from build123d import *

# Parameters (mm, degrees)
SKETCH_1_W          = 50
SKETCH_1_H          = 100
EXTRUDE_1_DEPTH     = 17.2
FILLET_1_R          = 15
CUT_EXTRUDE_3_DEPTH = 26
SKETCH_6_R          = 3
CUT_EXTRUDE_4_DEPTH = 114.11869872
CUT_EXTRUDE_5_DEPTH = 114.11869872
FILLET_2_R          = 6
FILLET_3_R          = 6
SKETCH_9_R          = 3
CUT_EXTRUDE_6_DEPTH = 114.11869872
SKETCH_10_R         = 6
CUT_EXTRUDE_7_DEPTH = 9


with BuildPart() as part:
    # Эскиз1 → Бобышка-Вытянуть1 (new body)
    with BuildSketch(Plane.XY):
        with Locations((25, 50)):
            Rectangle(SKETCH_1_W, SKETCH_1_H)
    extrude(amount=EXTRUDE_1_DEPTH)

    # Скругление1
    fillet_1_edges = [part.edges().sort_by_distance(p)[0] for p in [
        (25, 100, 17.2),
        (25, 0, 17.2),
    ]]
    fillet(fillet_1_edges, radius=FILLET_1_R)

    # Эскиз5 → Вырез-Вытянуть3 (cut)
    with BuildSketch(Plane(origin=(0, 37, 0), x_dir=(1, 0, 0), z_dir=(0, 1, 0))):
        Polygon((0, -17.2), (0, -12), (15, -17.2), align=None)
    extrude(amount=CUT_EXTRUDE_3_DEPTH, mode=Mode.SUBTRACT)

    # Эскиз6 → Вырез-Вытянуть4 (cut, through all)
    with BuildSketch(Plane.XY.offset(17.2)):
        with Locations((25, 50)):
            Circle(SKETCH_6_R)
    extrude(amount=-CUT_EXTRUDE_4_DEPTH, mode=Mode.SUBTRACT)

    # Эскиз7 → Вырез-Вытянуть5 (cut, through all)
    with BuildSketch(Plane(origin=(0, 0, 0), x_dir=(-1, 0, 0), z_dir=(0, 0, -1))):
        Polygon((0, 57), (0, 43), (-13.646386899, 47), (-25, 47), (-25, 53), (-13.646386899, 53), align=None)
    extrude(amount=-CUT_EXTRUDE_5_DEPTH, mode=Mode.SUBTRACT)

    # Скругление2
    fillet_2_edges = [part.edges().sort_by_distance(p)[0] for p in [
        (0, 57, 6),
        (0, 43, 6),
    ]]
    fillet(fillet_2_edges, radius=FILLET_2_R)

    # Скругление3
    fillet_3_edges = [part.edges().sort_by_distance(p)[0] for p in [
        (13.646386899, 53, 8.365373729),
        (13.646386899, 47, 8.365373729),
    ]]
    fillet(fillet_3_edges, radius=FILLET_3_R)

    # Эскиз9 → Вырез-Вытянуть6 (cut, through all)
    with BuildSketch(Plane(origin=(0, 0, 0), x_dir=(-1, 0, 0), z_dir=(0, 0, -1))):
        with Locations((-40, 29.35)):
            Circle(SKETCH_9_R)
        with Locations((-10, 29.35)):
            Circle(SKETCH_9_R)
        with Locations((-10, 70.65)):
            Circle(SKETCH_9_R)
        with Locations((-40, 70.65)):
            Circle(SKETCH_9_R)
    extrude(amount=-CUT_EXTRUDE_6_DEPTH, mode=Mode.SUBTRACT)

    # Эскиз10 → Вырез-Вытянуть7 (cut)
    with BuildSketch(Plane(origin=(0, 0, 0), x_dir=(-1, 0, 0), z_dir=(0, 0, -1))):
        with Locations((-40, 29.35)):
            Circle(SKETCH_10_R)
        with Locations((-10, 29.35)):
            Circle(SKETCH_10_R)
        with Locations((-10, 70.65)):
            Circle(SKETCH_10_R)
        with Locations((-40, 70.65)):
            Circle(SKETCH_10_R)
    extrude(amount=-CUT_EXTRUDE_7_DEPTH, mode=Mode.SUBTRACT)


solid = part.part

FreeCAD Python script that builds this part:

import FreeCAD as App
import Part
import Sketcher
from FreeCAD import Vector


def edges_at(feature, points):
    """Names of the edges that pass closest to the given points."""
    edges = feature.Shape.Edges
    near = lambda p: min(range(len(edges)), key=lambda i: edges[i].distToShape(Part.Vertex(*p))[0])
    return sorted({f"Edge{near(p) + 1}" for p in points})

doc = App.newDocument("Part")
params = doc.addObject("Spreadsheet::Sheet", "Params")
for row, (alias, value) in enumerate([
    ("sketch1_width", "50 mm"),
    ("sketch1_height", "100 mm"),
    ("pad1_length", "17.2 mm"),
    ("fillet_radius", "15 mm"),
    ("sketch2_width", "15 mm"),
    ("sketch2_height", "5.2 mm"),
    ("pocket1_length", "26 mm"),
    ("sketch3_diameter", "6 mm"),
    ("sketch4_height", "14 mm"),
    ("sketch4_height2", "6 mm"),
    ("fillet2_radius", "6 mm"),
    ("fillet3_radius", "6 mm"),
    ("sketch5_diameter", "6 mm"),
    ("sketch6_diameter", "12 mm"),
    ("pocket5_length", "9 mm"),
], start=1):
    params.set(f"A{row}", alias)
    params.set(f"B{row}", "=" + value)
    params.setAlias(f"B{row}", alias)

body = doc.addObject("PartDesign::Body", "Body")

sketch1 = body.newObject("Sketcher::SketchObject", "Sketch")
sketch1.AttachmentSupport = (doc.getObject("XY_Plane"), [""])
sketch1.MapMode = "FlatFace"
sketch1.addGeometry(Part.LineSegment(Vector(0, 100, 0), Vector(0, 0, 0)), False)
sketch1.addGeometry(Part.LineSegment(Vector(0, 0, 0), Vector(50, 0, 0)), False)
sketch1.addGeometry(Part.LineSegment(Vector(50, 0, 0), Vector(50, 100, 0)), False)
sketch1.addGeometry(Part.LineSegment(Vector(50, 100, 0), Vector(0, 100, 0)), False)
sketch1.addConstraint(Sketcher.Constraint("Coincident", 0, 2, 1, 1))
sketch1.addConstraint(Sketcher.Constraint("Coincident", 1, 2, 2, 1))
sketch1.addConstraint(Sketcher.Constraint("Coincident", 2, 2, 3, 1))
sketch1.addConstraint(Sketcher.Constraint("Coincident", 3, 2, 0, 1))
sketch1.addConstraint(Sketcher.Constraint("Vertical", 0))
sketch1.addConstraint(Sketcher.Constraint("Horizontal", 1))
sketch1.addConstraint(Sketcher.Constraint("Vertical", 2))
sketch1.addConstraint(Sketcher.Constraint("Horizontal", 3))
sketch1.addConstraint(Sketcher.Constraint("Coincident", 0, 2, -1, 1))
sketch1.addConstraint(Sketcher.Constraint("DistanceX", 1, 1, 1, 2, 50.0))
sketch1.addConstraint(Sketcher.Constraint("DistanceY", 0, 2, 0, 1, 100.0))
sketch1.setExpression("Constraints[9]", "Params.sketch1_width")
sketch1.setExpression("Constraints[10]", "Params.sketch1_height")
pad1 = body.newObject("PartDesign::Pad", "Pad")
pad1.Profile = sketch1
pad1.setExpression("Length", "Params.pad1_length")
doc.recompute()

fillet = body.newObject("PartDesign::Fillet", "Fillet")
fillet.Base = (pad1, edges_at(pad1, [(25, 100, 17.2), (25, 0, 17.2)]))
fillet.setExpression("Radius", "Params.fillet_radius")

sketch2 = body.newObject("Sketcher::SketchObject", "Sketch001")
sketch2.AttachmentSupport = (doc.getObject("XZ_Plane"), [""])
sketch2.MapMode = "FlatFace"
sketch2.AttachmentOffset = App.Placement(Vector(0, 0, -37), App.Rotation())
sketch2.addGeometry(Part.LineSegment(Vector(0, 12, 0), Vector(0, 17, 0)), False)
sketch2.addGeometry(Part.LineSegment(Vector(0, 17, 0), Vector(15, 17, 0)), False)
sketch2.addGeometry(Part.LineSegment(Vector(15, 17, 0), Vector(0, 12, 0)), False)
sketch2.addConstraint(Sketcher.Constraint("Coincident", 0, 2, 1, 1))
sketch2.addConstraint(Sketcher.Constraint("Coincident", 1, 2, 2, 1))
sketch2.addConstraint(Sketcher.Constraint("Coincident", 2, 2, 0, 1))
sketch2.addConstraint(Sketcher.Constraint("Vertical", 0))
sketch2.addConstraint(Sketcher.Constraint("Horizontal", 1))
sketch2.addConstraint(Sketcher.Constraint("PointOnObject", 0, 2, -2))
sketch2.addConstraint(Sketcher.Constraint("DistanceX", 1, 1, 1, 2, 15.0))
sketch2.addConstraint(Sketcher.Constraint("DistanceY", 0, 1, 0, 2, 5.2))
sketch2.addConstraint(Sketcher.Constraint("DistanceY", -1, 1, 2, 2, 12.0))
sketch2.setExpression("Constraints[6]", "Params.sketch2_width")
sketch2.setExpression("Constraints[7]", "Params.sketch2_height")
pocket1 = body.newObject("PartDesign::Pocket", "Pocket")
pocket1.Profile = sketch2
pocket1.setExpression("Length", "Params.pocket1_length")

sketch3 = body.newObject("Sketcher::SketchObject", "Sketch002")
sketch3.AttachmentSupport = (doc.getObject("XY_Plane"), [""])
sketch3.MapMode = "FlatFace"
sketch3.AttachmentOffset = App.Placement(Vector(0, 0, 17.2), App.Rotation())
sketch3.addGeometry(Part.Circle(Vector(25, 50, 0), Vector(0, 0, 1), 3), False)
sketch3.addConstraint(Sketcher.Constraint("Diameter", 0, 6.0))
sketch3.addConstraint(Sketcher.Constraint("DistanceX", -1, 1, 0, 3, 25.0))
sketch3.addConstraint(Sketcher.Constraint("DistanceY", -1, 1, 0, 3, 50.0))
sketch3.setExpression("Constraints[0]", "Params.sketch3_diameter")
pocket2 = body.newObject("PartDesign::Pocket", "Pocket001")
pocket2.Profile = sketch3
pocket2.Type = "ThroughAll"

sketch4 = body.newObject("Sketcher::SketchObject", "Sketch003")
sketch4.AttachmentSupport = (doc.getObject("XY_Plane"), [""])
sketch4.MapMode = "FlatFace"
sketch4.addGeometry(Part.LineSegment(Vector(0, 43, 0), Vector(0, 57, 0)), False)
sketch4.addGeometry(Part.LineSegment(Vector(0, 57, 0), Vector(14, 53, 0)), False)
sketch4.addGeometry(Part.LineSegment(Vector(14, 53, 0), Vector(25, 53, 0)), False)
sketch4.addGeometry(Part.LineSegment(Vector(25, 53, 0), Vector(25, 47, 0)), False)
sketch4.addGeometry(Part.LineSegment(Vector(25, 47, 0), Vector(14, 47, 0)), False)
sketch4.addGeometry(Part.LineSegment(Vector(14, 47, 0), Vector(0, 43, 0)), False)
sketch4.addConstraint(Sketcher.Constraint("Coincident", 0, 2, 1, 1))
sketch4.addConstraint(Sketcher.Constraint("Coincident", 1, 2, 2, 1))
sketch4.addConstraint(Sketcher.Constraint("Coincident", 2, 2, 3, 1))
sketch4.addConstraint(Sketcher.Constraint("Coincident", 3, 2, 4, 1))
sketch4.addConstraint(Sketcher.Constraint("Coincident", 4, 2, 5, 1))
sketch4.addConstraint(Sketcher.Constraint("Coincident", 5, 2, 0, 1))
sketch4.addConstraint(Sketcher.Constraint("Vertical", 0))
sketch4.addConstraint(Sketcher.Constraint("Horizontal", 2))
sketch4.addConstraint(Sketcher.Constraint("Vertical", 3))
sketch4.addConstraint(Sketcher.Constraint("Horizontal", 4))
sketch4.addConstraint(Sketcher.Constraint("PointOnObject", 0, 2, -2))
sketch4.addConstraint(Sketcher.Constraint("Vertical", 1, 2, 4, 2))
sketch4.addConstraint(Sketcher.Constraint("Equal", 1, 5))
sketch4.addConstraint(Sketcher.Constraint("DistanceY", 0, 1, 0, 2, 14.0))
sketch4.addConstraint(Sketcher.Constraint("DistanceY", 3, 2, 3, 1, 6.0))
sketch4.addConstraint(Sketcher.Constraint("DistanceY", -1, 1, 0, 2, 57.0))
sketch4.addConstraint(Sketcher.Constraint("DistanceX", -1, 1, 2, 2, 25.0))
sketch4.addConstraint(Sketcher.Constraint("DistanceX", 2, 1, 2, 2, 11.353613))
sketch4.setExpression("Constraints[13]", "Params.sketch4_height")
sketch4.setExpression("Constraints[14]", "Params.sketch4_height2")
pocket3 = body.newObject("PartDesign::Pocket", "Pocket002")
pocket3.Profile = sketch4
pocket3.Type = "ThroughAll"
pocket3.Reversed = True
doc.recompute()

fillet2 = body.newObject("PartDesign::Fillet", "Fillet001")
fillet2.Base = (pocket3, edges_at(pocket3, [(0, 57, 6), (0, 43, 6)]))
fillet2.setExpression("Radius", "Params.fillet2_radius")
doc.recompute()

fillet3 = body.newObject("PartDesign::Fillet", "Fillet002")
fillet3.Base = (fillet2, edges_at(fillet2, [(13.646, 53, 8.365), (13.646, 47, 8.365)]))
fillet3.setExpression("Radius", "Params.fillet3_radius")

sketch5 = body.newObject("Sketcher::SketchObject", "Sketch004")
sketch5.AttachmentSupport = (doc.getObject("XY_Plane"), [""])
sketch5.MapMode = "FlatFace"
sketch5.addGeometry(Part.Circle(Vector(40, 29.4, 0), Vector(0, 0, 1), 3), False)
sketch5.addGeometry(Part.Circle(Vector(10, 29.4, 0), Vector(0, 0, 1), 3), False)
sketch5.addGeometry(Part.Circle(Vector(10, 70.7, 0), Vector(0, 0, 1), 3), False)
sketch5.addGeometry(Part.Circle(Vector(40, 70.7, 0), Vector(0, 0, 1), 3), False)
sketch5.addConstraint(Sketcher.Constraint("Equal", 0, 1))
sketch5.addConstraint(Sketcher.Constraint("Equal", 1, 2))
sketch5.addConstraint(Sketcher.Constraint("Equal", 2, 3))
sketch5.addConstraint(Sketcher.Constraint("Horizontal", 0, 3, 1, 3))
sketch5.addConstraint(Sketcher.Constraint("Horizontal", 2, 3, 3, 3))
sketch5.addConstraint(Sketcher.Constraint("Vertical", 1, 3, 2, 3))
sketch5.addConstraint(Sketcher.Constraint("Vertical", 0, 3, 3, 3))
sketch5.addConstraint(Sketcher.Constraint("Diameter", 0, 6.0))
sketch5.addConstraint(Sketcher.Constraint("DistanceX", -1, 1, 0, 3, 40.0))
sketch5.addConstraint(Sketcher.Constraint("DistanceX", -1, 1, 1, 3, 10.0))
sketch5.addConstraint(Sketcher.Constraint("DistanceY", 1, 3, 2, 3, 41.3))
sketch5.addConstraint(Sketcher.Constraint("DistanceY", -1, 1, 0, 3, 29.35))
sketch5.setExpression("Constraints[7]", "Params.sketch5_diameter")
pocket4 = body.newObject("PartDesign::Pocket", "Pocket003")
pocket4.Profile = sketch5
pocket4.Type = "ThroughAll"
pocket4.Reversed = True

sketch6 = body.newObject("Sketcher::SketchObject", "Sketch005")
sketch6.AttachmentSupport = (doc.getObject("XY_Plane"), [""])
sketch6.MapMode = "FlatFace"
sketch6.addGeometry(Part.Circle(Vector(40, 29, 0), Vector(0, 0, 1), 6), False)
sketch6.addGeometry(Part.Circle(Vector(10, 29, 0), Vector(0, 0, 1), 6), False)
sketch6.addGeometry(Part.Circle(Vector(10, 71, 0), Vector(0, 0, 1), 6), False)
sketch6.addGeometry(Part.Circle(Vector(40, 71, 0), Vector(0, 0, 1), 6), False)
sketch6.addConstraint(Sketcher.Constraint("Equal", 0, 1))
sketch6.addConstraint(Sketcher.Constraint("Equal", 1, 2))
sketch6.addConstraint(Sketcher.Constraint("Equal", 2, 3))
sketch6.addConstraint(Sketcher.Constraint("Horizontal", 0, 3, 1, 3))
sketch6.addConstraint(Sketcher.Constraint("Horizontal", 2, 3, 3, 3))
sketch6.addConstraint(Sketcher.Constraint("Vertical", 1, 3, 2, 3))
sketch6.addConstraint(Sketcher.Constraint("Vertical", 0, 3, 3, 3))
sketch6.addConstraint(Sketcher.Constraint("Diameter", 0, 12.0))
sketch6.addConstraint(Sketcher.Constraint("DistanceX", -1, 1, 0, 3, 40.0))
sketch6.addConstraint(Sketcher.Constraint("DistanceX", -1, 1, 1, 3, 10.0))
sketch6.addConstraint(Sketcher.Constraint("DistanceY", 1, 3, 2, 3, 41.3))
sketch6.addConstraint(Sketcher.Constraint("DistanceY", -1, 1, 0, 3, 29.35))
sketch6.setExpression("Constraints[7]", "Params.sketch6_diameter")
pocket5 = body.newObject("PartDesign::Pocket", "Pocket004")
pocket5.Profile = sketch6
pocket5.setExpression("Length", "Params.pocket5_length")
pocket5.Reversed = True

doc.recompute()
